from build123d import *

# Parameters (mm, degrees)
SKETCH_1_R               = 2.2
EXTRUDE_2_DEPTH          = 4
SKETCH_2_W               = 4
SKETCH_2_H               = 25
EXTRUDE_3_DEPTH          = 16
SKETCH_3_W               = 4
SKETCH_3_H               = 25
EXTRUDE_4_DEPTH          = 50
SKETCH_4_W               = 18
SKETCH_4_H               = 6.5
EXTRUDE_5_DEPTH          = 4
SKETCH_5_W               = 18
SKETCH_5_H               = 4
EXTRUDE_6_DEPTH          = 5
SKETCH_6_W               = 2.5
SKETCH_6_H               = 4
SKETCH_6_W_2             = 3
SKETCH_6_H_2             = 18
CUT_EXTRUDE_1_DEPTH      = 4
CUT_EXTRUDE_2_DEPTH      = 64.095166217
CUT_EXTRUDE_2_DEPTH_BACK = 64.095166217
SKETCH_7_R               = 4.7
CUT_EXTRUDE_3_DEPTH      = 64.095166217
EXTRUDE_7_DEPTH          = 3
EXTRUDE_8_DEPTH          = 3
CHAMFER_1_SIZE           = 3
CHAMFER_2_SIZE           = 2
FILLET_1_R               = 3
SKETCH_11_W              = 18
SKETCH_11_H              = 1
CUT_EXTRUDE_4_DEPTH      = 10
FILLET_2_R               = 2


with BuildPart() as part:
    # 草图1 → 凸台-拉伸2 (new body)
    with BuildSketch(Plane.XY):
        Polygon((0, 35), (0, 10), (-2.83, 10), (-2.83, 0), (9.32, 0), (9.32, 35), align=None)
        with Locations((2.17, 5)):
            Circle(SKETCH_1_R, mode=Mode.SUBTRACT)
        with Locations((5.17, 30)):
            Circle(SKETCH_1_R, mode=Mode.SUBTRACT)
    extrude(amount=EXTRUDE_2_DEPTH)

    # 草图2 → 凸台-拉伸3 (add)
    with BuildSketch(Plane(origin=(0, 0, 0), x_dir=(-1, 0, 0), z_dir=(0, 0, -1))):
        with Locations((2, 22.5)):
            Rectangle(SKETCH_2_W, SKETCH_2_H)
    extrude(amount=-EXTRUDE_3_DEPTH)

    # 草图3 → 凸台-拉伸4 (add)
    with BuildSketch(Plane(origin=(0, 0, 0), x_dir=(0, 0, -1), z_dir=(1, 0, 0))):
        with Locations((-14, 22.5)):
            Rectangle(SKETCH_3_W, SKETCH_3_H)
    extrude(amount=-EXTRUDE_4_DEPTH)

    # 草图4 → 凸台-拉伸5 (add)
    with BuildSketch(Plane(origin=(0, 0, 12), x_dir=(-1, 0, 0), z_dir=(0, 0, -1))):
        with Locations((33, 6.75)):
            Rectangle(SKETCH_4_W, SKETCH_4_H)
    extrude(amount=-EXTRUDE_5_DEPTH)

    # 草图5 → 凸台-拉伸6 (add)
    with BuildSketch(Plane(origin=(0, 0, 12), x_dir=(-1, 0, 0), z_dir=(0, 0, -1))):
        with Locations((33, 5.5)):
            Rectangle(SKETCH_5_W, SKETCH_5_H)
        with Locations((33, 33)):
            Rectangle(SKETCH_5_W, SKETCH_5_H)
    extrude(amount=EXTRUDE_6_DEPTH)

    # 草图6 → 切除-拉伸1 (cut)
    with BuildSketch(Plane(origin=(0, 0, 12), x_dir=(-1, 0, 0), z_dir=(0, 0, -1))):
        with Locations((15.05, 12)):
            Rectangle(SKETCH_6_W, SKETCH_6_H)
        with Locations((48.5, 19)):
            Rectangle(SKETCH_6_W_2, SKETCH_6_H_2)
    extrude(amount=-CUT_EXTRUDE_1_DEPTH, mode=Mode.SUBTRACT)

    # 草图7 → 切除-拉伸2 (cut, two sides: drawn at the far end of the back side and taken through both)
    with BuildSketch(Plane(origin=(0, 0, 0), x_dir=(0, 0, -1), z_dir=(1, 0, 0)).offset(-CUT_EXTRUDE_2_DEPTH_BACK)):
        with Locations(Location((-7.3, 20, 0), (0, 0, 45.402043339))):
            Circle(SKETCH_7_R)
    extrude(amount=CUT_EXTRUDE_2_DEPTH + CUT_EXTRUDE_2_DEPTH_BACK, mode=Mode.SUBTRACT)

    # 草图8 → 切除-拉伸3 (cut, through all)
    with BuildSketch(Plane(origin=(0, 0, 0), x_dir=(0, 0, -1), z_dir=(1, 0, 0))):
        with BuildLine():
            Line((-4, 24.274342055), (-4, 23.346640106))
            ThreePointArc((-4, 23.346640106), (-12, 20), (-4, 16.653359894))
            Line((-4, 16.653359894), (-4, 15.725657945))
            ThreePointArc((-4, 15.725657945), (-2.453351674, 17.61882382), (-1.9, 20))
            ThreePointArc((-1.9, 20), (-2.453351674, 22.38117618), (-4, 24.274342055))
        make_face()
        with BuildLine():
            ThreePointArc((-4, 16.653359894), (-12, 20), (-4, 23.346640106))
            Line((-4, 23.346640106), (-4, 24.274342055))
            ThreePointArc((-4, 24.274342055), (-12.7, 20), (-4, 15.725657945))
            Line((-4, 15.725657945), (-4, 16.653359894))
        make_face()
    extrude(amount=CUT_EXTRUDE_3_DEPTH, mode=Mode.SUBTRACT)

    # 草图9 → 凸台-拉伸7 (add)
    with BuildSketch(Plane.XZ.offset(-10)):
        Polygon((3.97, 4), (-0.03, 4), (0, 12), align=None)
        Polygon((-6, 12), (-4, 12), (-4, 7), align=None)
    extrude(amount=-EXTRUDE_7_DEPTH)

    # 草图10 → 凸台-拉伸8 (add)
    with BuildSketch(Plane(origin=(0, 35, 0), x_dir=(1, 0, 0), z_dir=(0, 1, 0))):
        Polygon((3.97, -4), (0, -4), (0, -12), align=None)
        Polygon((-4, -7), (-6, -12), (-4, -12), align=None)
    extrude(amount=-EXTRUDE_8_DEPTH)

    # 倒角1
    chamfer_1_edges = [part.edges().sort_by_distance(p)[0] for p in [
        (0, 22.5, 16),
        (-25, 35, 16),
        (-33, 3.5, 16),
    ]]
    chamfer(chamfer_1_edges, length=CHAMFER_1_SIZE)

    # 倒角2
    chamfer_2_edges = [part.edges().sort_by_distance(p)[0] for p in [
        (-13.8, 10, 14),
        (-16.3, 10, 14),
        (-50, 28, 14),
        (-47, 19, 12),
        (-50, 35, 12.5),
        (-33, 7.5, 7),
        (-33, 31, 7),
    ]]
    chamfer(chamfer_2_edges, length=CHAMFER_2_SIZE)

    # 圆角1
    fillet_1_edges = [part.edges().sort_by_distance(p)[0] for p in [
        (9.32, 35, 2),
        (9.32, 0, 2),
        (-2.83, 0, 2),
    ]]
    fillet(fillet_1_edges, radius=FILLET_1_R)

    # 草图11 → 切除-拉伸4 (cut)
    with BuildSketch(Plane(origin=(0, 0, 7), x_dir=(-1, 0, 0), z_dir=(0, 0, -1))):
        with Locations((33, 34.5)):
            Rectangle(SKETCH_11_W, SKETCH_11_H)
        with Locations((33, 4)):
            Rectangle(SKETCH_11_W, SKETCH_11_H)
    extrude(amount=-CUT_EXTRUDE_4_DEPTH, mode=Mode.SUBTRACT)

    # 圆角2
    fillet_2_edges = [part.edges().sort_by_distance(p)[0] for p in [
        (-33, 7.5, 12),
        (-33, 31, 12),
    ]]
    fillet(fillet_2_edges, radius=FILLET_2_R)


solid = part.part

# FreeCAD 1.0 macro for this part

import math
import FreeCAD as App
import Part
import Sketcher
Q = App.Units.Quantity


def edges_at(feature, points):
    """Names of the edges that pass closest to the given points."""
    edges = feature.Shape.Edges
    near = lambda p: min(range(len(edges)), key=lambda i: edges[i].distToShape(Part.Vertex(*p))[0])
    return sorted({f"Edge{near(p) + 1}" for p in points})

doc = App.newDocument("Part")
body = doc.addObject("PartDesign::Body", "Body")

# Sketch on XY plane
sketch1 = body.newObject("Sketcher::SketchObject", "Sketch")
sketch1.AttachmentSupport = (doc.getObject("XY_Plane"), [""])
sketch1.MapMode = "FlatFace"
sketch1.addGeometry(Part.LineSegment(App.Vector(0, 35, 0), App.Vector(0, 10, 0)), False)
sketch1.addGeometry(Part.LineSegment(App.Vector(0, 10, 0), App.Vector(-2.8, 10, 0)), False)
sketch1.addGeometry(Part.LineSegment(App.Vector(-2.8, 10, 0), App.Vector(-2.8, 0, 0)), False)
sketch1.addGeometry(Part.LineSegment(App.Vector(-2.8, 0, 0), App.Vector(9.3, 0, 0)), False)
sketch1.addGeometry(Part.LineSegment(App.Vector(9.3, 0, 0), App.Vector(9.3, 35, 0)), False)
sketch1.addGeometry(Part.LineSegment(App.Vector(9.3, 35, 0), App.Vector(0, 35, 0)), False)
sketch1.addGeometry(Part.Circle(App.Vector(2.2, 5, 0), App.Vector(0, 0, 1), 2.2), False)
sketch1.addGeometry(Part.Circle(App.Vector(5.2, 30, 0), App.Vector(0, 0, 1), 2.2), False)
sketch1.addConstraint(Sketcher.Constraint("Coincident", 0, 2, 1, 1))
sketch1.addConstraint(Sketcher.Constraint("Coincident", 1, 2, 2, 1))
sketch1.addConstraint(Sketcher.Constraint("Coincident", 2, 2, 3, 1))
sketch1.addConstraint(Sketcher.Constraint("Coincident", 3, 2, 4, 1))
sketch1.addConstraint(Sketcher.Constraint("Coincident", 4, 2, 5, 1))
sketch1.addConstraint(Sketcher.Constraint("Coincident", 5, 2, 0, 1))
sketch1.addConstraint(Sketcher.Constraint("Vertical", 0))
sketch1.addConstraint(Sketcher.Constraint("Horizontal", 1))
sketch1.addConstraint(Sketcher.Constraint("Vertical", 2))
sketch1.addConstraint(Sketcher.Constraint("Horizontal", 3))
sketch1.addConstraint(Sketcher.Constraint("Vertical", 4))
sketch1.addConstraint(Sketcher.Constraint("Horizontal", 5))
sketch1.addConstraint(Sketcher.Constraint("Equal", 6, 7))
sketch1.addConstraint(Sketcher.Constraint("PointOnObject", 0, 2, -2))
sketch1.addConstraint(Sketcher.Constraint("PointOnObject", 2, 2, -1))
sketch1.addConstraint(Sketcher.Constraint("Diameter", 6, Q("4.4 mm")))
sketch1.addConstraint(Sketcher.Constraint("DistanceY", 0, 2, 0, 1, Q("25 mm")))
sketch1.addConstraint(Sketcher.Constraint("DistanceY", 2, 2, 2, 1, Q("10 mm")))
sketch1.addConstraint(Sketcher.Constraint("DistanceY", -1, 1, 6, 3, Q("5 mm")))
sketch1.addConstraint(Sketcher.Constraint("DistanceY", -1, 1, 7, 3, Q("30 mm")))
sketch1.addConstraint(Sketcher.Constraint("DistanceX", 6, 3, 7, 3, Q("3 mm")))
sketch1.addConstraint(Sketcher.Constraint("DistanceX", 1, 2, 6, 3, Q("5 mm")))
sketch1.addConstraint(Sketcher.Constraint("DistanceX", 1, 2, 1, 1, Q("2.83 mm")))
sketch1.addConstraint(Sketcher.Constraint("DistanceX", 3, 1, 3, 2, Q("12.15 mm")))
pad1 = body.newObject("PartDesign::Pad", "Pad")
pad1.Profile = sketch1
pad1.Length = 4

# Sketch on XY plane
sketch2 = body.newObject("Sketcher::SketchObject", "Sketch001")
sketch2.AttachmentSupport = (doc.getObject("XY_Plane"), [""])
sketch2.MapMode = "FlatFace"
sketch2.addGeometry(Part.LineSegment(App.Vector(0, 35, 0), App.Vector(0, 10, 0)), False)
sketch2.addGeometry(Part.LineSegment(App.Vector(0, 10, 0), App.Vector(-4, 10, 0)), False)
sketch2.addGeometry(Part.LineSegment(App.Vector(-4, 10, 0), App.Vector(-4, 35, 0)), False)
sketch2.addGeometry(Part.LineSegment(App.Vector(-4, 35, 0), App.Vector(0, 35, 0)), False)
sketch2.addConstraint(Sketcher.Constraint("Coincident", 0, 2, 1, 1))
sketch2.addConstraint(Sketcher.Constraint("Coincident", 1, 2, 2, 1))
sketch2.addConstraint(Sketcher.Constraint("Coincident", 2, 2, 3, 1))
sketch2.addConstraint(Sketcher.Constraint("Coincident", 3, 2, 0, 1))
sketch2.addConstraint(Sketcher.Constraint("Vertical", 0))
sketch2.addConstraint(Sketcher.Constraint("Horizontal", 1))
sketch2.addConstraint(Sketcher.Constraint("Vertical", 2))
sketch2.addConstraint(Sketcher.Constraint("Horizontal", 3))
sketch2.addConstraint(Sketcher.Constraint("PointOnObject", 0, 2, -2))
sketch2.addConstraint(Sketcher.Constraint("DistanceX", 1, 2, 1, 1, Q("4 mm")))
sketch2.addConstraint(Sketcher.Constraint("DistanceY", 0, 2, 0, 1, Q("25 mm")))
sketch2.addConstraint(Sketcher.Constraint("DistanceY", -1, 1, 0, 2, Q("10 mm")))
pad2 = body.newObject("PartDesign::Pad", "Pad001")
pad2.Profile = sketch2
pad2.Length = 16

# Sketch on YZ plane
sketch3 = body.newObject("Sketcher::SketchObject", "Sketch002")
sketch3.AttachmentSupport = (doc.getObject("YZ_Plane"), [""])
sketch3.MapMode = "FlatFace"
sketch3.addGeometry(Part.LineSegment(App.Vector(35, 16, 0), App.Vector(10, 16, 0)), False)
sketch3.addGeometry(Part.LineSegment(App.Vector(10, 16, 0), App.Vector(10, 12, 0)), False)
sketch3.addGeometry(Part.LineSegment(App.Vector(10, 12, 0), App.Vector(35, 12, 0)), False)
sketch3.addGeometry(Part.LineSegment(App.Vector(35, 12, 0), App.Vector(35, 16, 0)), False)
sketch3.addConstraint(Sketcher.Constraint("Coincident", 0, 2, 1, 1))
sketch3.addConstraint(Sketcher.Constraint("Coincident", 1, 2, 2, 1))
sketch3.addConstraint(Sketcher.Constraint("Coincident", 2, 2, 3, 1))
sketch3.addConstraint(Sketcher.Constraint("Coincident", 3, 2, 0, 1))
sketch3.addConstraint(Sketcher.Constraint("Horizontal", 0))
sketch3.addConstraint(Sketcher.Constraint("Vertical", 1))
sketch3.addConstraint(Sketcher.Constraint("Horizontal", 2))
sketch3.addConstraint(Sketcher.Constraint("Vertical", 3))
sketch3.addConstraint(Sketcher.Constraint("DistanceX", 0, 2, 0, 1, Q("25 mm")))
sketch3.addConstraint(Sketcher.Constraint("DistanceY", 1, 2, 1, 1, Q("4 mm")))
sketch3.addConstraint(Sketcher.Constraint("DistanceX", -1, 1, 0, 2, Q("10 mm")))
sketch3.addConstraint(Sketcher.Constraint("DistanceY", -1, 1, 0, 2, Q("16 mm")))
pad3 = body.newObject("PartDesign::Pad", "Pad002")
pad3.Profile = sketch3
pad3.Length = 50
pad3.Reversed = True

# Sketch on XY plane
sketch4 = body.newObject("Sketcher::SketchObject", "Sketch003")
sketch4.AttachmentSupport = (doc.getObject("XY_Plane"), [""])
sketch4.MapMode = "FlatFace"
sketch4.AttachmentOffset = App.Placement(App.Vector(0, 0, 12), App.Rotation())
sketch4.addGeometry(Part.LineSegment(App.Vector(-24, 10, 0), App.Vector(-24, 4, 0)), False)
sketch4.addGeometry(Part.LineSegment(App.Vector(-24, 4, 0), App.Vector(-42, 4, 0)), False)
sketch4.addGeometry(Part.LineSegment(App.Vector(-42, 4, 0), App.Vector(-42, 10, 0)), False)
sketch4.addGeometry(Part.LineSegment(App.Vector(-42, 10, 0), App.Vector(-24, 10, 0)), False)
sketch4.addConstraint(Sketcher.Constraint("Coincident", 0, 2, 1, 1))
sketch4.addConstraint(Sketcher.Constraint("Coincident", 1, 2, 2, 1))
sketch4.addConstraint(Sketcher.Constraint("Coincident", 2, 2, 3, 1))
sketch4.addConstraint(Sketcher.Constraint("Coincident", 3, 2, 0, 1))
sketch4.addConstraint(Sketcher.Constraint("Vertical", 0))
sketch4.addConstraint(Sketcher.Constraint("Horizontal", 1))
sketch4.addConstraint(Sketcher.Constraint("Vertical", 2))
sketch4.addConstraint(Sketcher.Constraint("Horizontal", 3))
sketch4.addConstraint(Sketcher.Constraint("DistanceX", 1, 2, 1, 1, Q("18 mm")))
sketch4.addConstraint(Sketcher.Constraint("DistanceY", 0, 2, 0, 1, Q("6.5 mm")))
sketch4.addConstraint(Sketcher.Constraint("DistanceX", 0, 2, -1, 1, Q("24 mm")))
sketch4.addConstraint(Sketcher.Constraint("DistanceY", -1, 1, 2, 2, Q("10 mm")))
pad4 = body.newObject("PartDesign::Pad", "Pad003")
pad4.Profile = sketch4
pad4.Length = 4

# Sketch on XY plane
sketch5 = body.newObject("Sketcher::SketchObject", "Sketch004")
sketch5.AttachmentSupport = (doc.getObject("XY_Plane"), [""])
sketch5.MapMode = "FlatFace"
sketch5.AttachmentOffset = App.Placement(App.Vector(0, 0, 12), App.Rotation())
sketch5.addGeometry(Part.LineSegment(App.Vector(-24, 7.5, 0), App.Vector(-24, 3.5, 0)), False)
sketch5.addGeometry(Part.LineSegment(App.Vector(-24, 3.5, 0), App.Vector(-42, 3.5, 0)), False)
sketch5.addGeometry(Part.LineSegment(App.Vector(-42, 3.5, 0), App.Vector(-42, 7.5, 0)), False)
sketch5.addGeometry(Part.LineSegment(App.Vector(-42, 7.5, 0), App.Vector(-24, 7.5, 0)), False)
sketch5.addGeometry(Part.LineSegment(App.Vector(-24, 35, 0), App.Vector(-24, 31, 0)), False)
sketch5.addGeometry(Part.LineSegment(App.Vector(-24, 31, 0), App.Vector(-42, 31, 0)), False)
sketch5.addGeometry(Part.LineSegment(App.Vector(-42, 31, 0), App.Vector(-42, 35, 0)), False)
sketch5.addGeometry(Part.LineSegment(App.Vector(-42, 35, 0), App.Vector(-24, 35, 0)), False)
sketch5.addConstraint(Sketcher.Constraint("Coincident", 0, 2, 1, 1))
sketch5.addConstraint(Sketcher.Constraint("Coincident", 1, 2, 2, 1))
sketch5.addConstraint(Sketcher.Constraint("Coincident", 2, 2, 3, 1))
sketch5.addConstraint(Sketcher.Constraint("Coincident", 3, 2, 0, 1))
sketch5.addConstraint(Sketcher.Constraint("Coincident", 4, 2, 5, 1))
sketch5.addConstraint(Sketcher.Constraint("Coincident", 5, 2, 6, 1))
sketch5.addConstraint(Sketcher.Constraint("Coincident", 6, 2, 7, 1))
sketch5.addConstraint(Sketcher.Constraint("Coincident", 7, 2, 4, 1))
sketch5.addConstraint(Sketcher.Constraint("Vertical", 0))
sketch5.addConstraint(Sketcher.Constraint("Horizontal", 1))
sketch5.addConstraint(Sketcher.Constraint("Vertical", 2))
sketch5.addConstraint(Sketcher.Constraint("Horizontal", 3))
sketch5.addConstraint(Sketcher.Constraint("Vertical", 4))
sketch5.addConstraint(Sketcher.Constraint("Horizontal", 5))
sketch5.addConstraint(Sketcher.Constraint("Vertical", 6))
sketch5.addConstraint(Sketcher.Constraint("Horizontal", 7))
sketch5.addConstraint(Sketcher.Constraint("Vertical", 3, 2, 4, 2))
sketch5.addConstraint(Sketcher.Constraint("Vertical", 2, 2, 5, 2))
sketch5.addConstraint(Sketcher.Constraint("Equal", 2, 4))
sketch5.addConstraint(Sketcher.Constraint("DistanceX", 1, 2, 1, 1, Q("18 mm")))
sketch5.addConstraint(Sketcher.Constraint("DistanceY", 0, 2, 0, 1, Q("4 mm")))
sketch5.addConstraint(Sketcher.Constraint("DistanceX", 0, 2, -1, 1, Q("24 mm")))
sketch5.addConstraint(Sketcher.Constraint("DistanceY", -1, 1, 4, 2, Q("31 mm")))
sketch5.addConstraint(Sketcher.Constraint("DistanceY", -1, 1, 0, 2, Q("3.5 mm")))
pad5 = body.newObject("PartDesign::Pad", "Pad004")
pad5.Profile = sketch5
pad5.Length = 5
pad5.Reversed = True

# Sketch on XY plane
sketch6 = body.newObject("Sketcher::SketchObject", "Sketch005")
sketch6.AttachmentSupport = (doc.getObject("XY_Plane"), [""])
sketch6.MapMode = "FlatFace"
sketch6.AttachmentOffset = App.Placement(App.Vector(0, 0, 12), App.Rotation())
sketch6.addGeometry(Part.LineSegment(App.Vector(-13.8, 14, 0), App.Vector(-13.8, 10, 0)), False)
sketch6.addGeometry(Part.LineSegment(App.Vector(-13.8, 10, 0), App.Vector(-16.3, 10, 0)), False)
sketch6.addGeometry(Part.LineSegment(App.Vector(-16.3, 10, 0), App.Vector(-16.3, 14, 0)), False)
sketch6.addGeometry(Part.LineSegment(App.Vector(-16.3, 14, 0), App.Vector(-13.8, 14, 0)), False)
sketch6.addGeometry(Part.LineSegment(App.Vector(-47, 28, 0), App.Vector(-47, 10, 0)), False)
sketch6.addGeometry(Part.LineSegment(App.Vector(-47, 10, 0), App.Vector(-50, 10, 0)), False)
sketch6.addGeometry(Part.LineSegment(App.Vector(-50, 10, 0), App.Vector(-50, 28, 0)), False)
sketch6.addGeometry(Part.LineSegment(App.Vector(-50, 28, 0), App.Vector(-47, 28, 0)), False)
sketch6.addConstraint(Sketcher.Constraint("Coincident", 0, 2, 1, 1))
sketch6.addConstraint(Sketcher.Constraint("Coincident", 1, 2, 2, 1))
sketch6.addConstraint(Sketcher.Constraint("Coincident", 2, 2, 3, 1))
sketch6.addConstraint(Sketcher.Constraint("Coincident", 3, 2, 0, 1))
sketch6.addConstraint(Sketcher.Constraint("Coincident", 4, 2, 5, 1))
sketch6.addConstraint(Sketcher.Constraint("Coincident", 5, 2, 6, 1))
sketch6.addConstraint(Sketcher.Constraint("Coincident", 6, 2, 7, 1))
sketch6.addConstraint(Sketcher.Constraint("Coincident", 7, 2, 4, 1))
sketch6.addConstraint(Sketcher.Constraint("Vertical", 0))
sketch6.addConstraint(Sketcher.Constraint("Horizontal", 1))
sketch6.addConstraint(Sketcher.Constraint("Vertical", 2))
sketch6.addConstraint(Sketcher.Constraint("Horizontal", 3))
sketch6.addConstraint(Sketcher.Constraint("Vertical", 4))
sketch6.addConstraint(Sketcher.Constraint("Horizontal", 5))
sketch6.addConstraint(Sketcher.Constraint("Vertical", 6))
sketch6.addConstraint(Sketcher.Constraint("Horizontal", 7))
sketch6.addConstraint(Sketcher.Constraint("Horizontal", 1, 2, 4, 2))
sketch6.addConstraint(Sketcher.Constraint("DistanceX", 5, 2, 5, 1, Q("3 mm")))
sketch6.addConstraint(Sketcher.Constraint("DistanceY", 0, 2, 0, 1, Q("4 mm")))
sketch6.addConstraint(Sketcher.Constraint("DistanceY", 4, 2, 4, 1, Q("18 mm")))
sketch6.addConstraint(Sketcher.Constraint("DistanceX", 1, 2, 1, 1, Q("2.5 mm")))
sketch6.addConstraint(Sketcher.Constraint("DistanceY", -1, 1, 0, 2, Q("10 mm")))
sketch6.addConstraint(Sketcher.Constraint("DistanceX", 4, 2, -1, 1, Q("47 mm")))
sketch6.addConstraint(Sketcher.Constraint("DistanceX", 0, 2, -1, 1, Q("13.8 mm")))
pocket1 = body.newObject("PartDesign::Pocket", "Pocket")
pocket1.Profile = sketch6
pocket1.Length = 4
pocket1.Reversed = True

# Sketch on YZ plane
sketch7 = body.newObject("Sketcher::SketchObject", "Sketch006")
sketch7.AttachmentSupport = (doc.getObject("YZ_Plane"), [""])
sketch7.MapMode = "FlatFace"
sketch7.addGeometry(Part.Circle(App.Vector(20, 7.3, 0), App.Vector(0, 0, 1), 4.7), False)
sketch7.addConstraint(Sketcher.Constraint("Diameter", 0, Q("9.4 mm")))
sketch7.addConstraint(Sketcher.Constraint("DistanceX", -1, 1, 0, 3, Q("20 mm")))
sketch7.addConstraint(Sketcher.Constraint("DistanceY", -1, 1, 0, 3, Q("7.3 mm")))
pocket2 = body.newObject("PartDesign::Pocket", "Pocket001")
pocket2.Profile = sketch7
pocket2.Type = "ThroughAll"
pocket2.Midplane = True

# Sketch on YZ plane
sketch8 = body.newObject("Sketcher::SketchObject", "Sketch007")
sketch8.AttachmentSupport = (doc.getObject("YZ_Plane"), [""])
sketch8.MapMode = "FlatFace"
sketch8.addGeometry(Part.ArcOfCircle(Part.Circle(App.Vector(20, 7.3, 0), App.Vector(0, 0, 1), 5.4), math.radians(-142), math.radians(-90)), False)
sketch8.addGeometry(Part.ArcOfCircle(Part.Circle(App.Vector(20, 7.3, 0), App.Vector(0, 0, 1), 5.4), math.radians(-90), math.radians(-38)), False)
sketch8.addGeometry(Part.ArcOfCircle(Part.Circle(App.Vector(20, 7.3, 0), App.Vector(0, 0, 1), 5.4), math.radians(-38), math.radians(218)), False)
sketch8.addConstraint(Sketcher.Constraint("Tangent", 0, 2, 1, 1))
sketch8.addConstraint(Sketcher.Constraint("Tangent", 1, 2, 2, 1))
sketch8.addConstraint(Sketcher.Constraint("Tangent", 2, 2, 0, 1))
sketch8.addConstraint(Sketcher.Constraint("Horizontal", 1, 2, 2, 2))
sketch8.addConstraint(Sketcher.Constraint("Vertical", 2, 3, 0, 2))
sketch8.addConstraint(Sketcher.Constraint("Radius", 0, Q("5.4 mm")))
sketch8.addConstraint(Sketcher.Constraint("DistanceX", -1, 1, 0, 3, Q("20 mm")))
sketch8.addConstraint(Sketcher.Constraint("DistanceY", -1, 1, 1, 2, Q("4 mm")))
sketch8.addConstraint(Sketcher.Constraint("DistanceY", -1, 1, 0, 3, Q("7.3 mm")))
pocket3 = body.newObject("PartDesign::Pocket", "Pocket002")
pocket3.Profile = sketch8
pocket3.Type = "ThroughAll"
pocket3.Reversed = True

# Sketch on XZ plane
sketch9 = body.newObject("Sketcher::SketchObject", "Sketch008")
sketch9.AttachmentSupport = (doc.getObject("XZ_Plane"), [""])
sketch9.MapMode = "FlatFace"
sketch9.AttachmentOffset = App.Placement(App.Vector(0, 0, -10), App.Rotation())
sketch9.addGeometry(Part.LineSegment(App.Vector(0, 4, 0), App.Vector(4, 4, 0)), False)
sketch9.addGeometry(Part.LineSegment(App.Vector(4, 4, 0), App.Vector(0, 12, 0)), False)
sketch9.addGeometry(Part.LineSegment(App.Vector(0, 12, 0), App.Vector(0, 4, 0)), False)
sketch9.addGeometry(Part.LineSegment(App.Vector(-4, 12, 0), App.Vector(-6, 12, 0)), False)
sketch9.addGeometry(Part.LineSegment(App.Vector(-6, 12, 0), App.Vector(-4, 7, 0)), False)
sketch9.addGeometry(Part.LineSegment(App.Vector(-4, 7, 0), App.Vector(-4, 12, 0)), False)
sketch9.addConstraint(Sketcher.Constraint("Coincident", 0, 2, 1, 1))
sketch9.addConstraint(Sketcher.Constraint("Coincident", 1, 2, 2, 1))
sketch9.addConstraint(Sketcher.Constraint("Coincident", 2, 2, 0, 1))
sketch9.addConstraint(Sketcher.Constraint("Coincident", 3, 2, 4, 1))
sketch9.addConstraint(Sketcher.Constraint("Coincident", 4, 2, 5, 1))
sketch9.addConstraint(Sketcher.Constraint("Coincident", 5, 2, 3, 1))
sketch9.addConstraint(Sketcher.Constraint("Horizontal", 0))
sketch9.addConstraint(Sketcher.Constraint("Horizontal", 3))
sketch9.addConstraint(Sketcher.Constraint("Vertical", 5))
sketch9.addConstraint(Sketcher.Constraint("PointOnObject", 1, 2, -2))
sketch9.addConstraint(Sketcher.Constraint("Horizontal", 1, 2, 3, 2))
sketch9.addConstraint(Sketcher.Constraint("DistanceX", 0, 1, 0, 2, Q("4 mm")))
sketch9.addConstraint(Sketcher.Constraint("DistanceX", 3, 2, 3, 1, Q("2 mm")))
sketch9.addConstraint(Sketcher.Constraint("DistanceY", 5, 1, 5, 2, Q("5 mm")))
sketch9.addConstraint(Sketcher.Constraint("DistanceY", -1, 1, 0, 2, Q("4 mm")))
sketch9.addConstraint(Sketcher.Constraint("DistanceY", -1, 1, 1, 2, Q("12 mm")))
sketch9.addConstraint(Sketcher.Constraint("DistanceX", 3, 2, -1, 1, Q("6 mm")))
sketch9.addConstraint(Sketcher.Constraint("DistanceX", -1, 1, 0, 2, Q("3.97 mm")))
pad6 = body.newObject("PartDesign::Pad", "Pad005")
pad6.Profile = sketch9
pad6.Length = 3
pad6.Reversed = True

# Sketch on XZ plane
sketch10 = body.newObject("Sketcher::SketchObject", "Sketch009")
sketch10.AttachmentSupport = (doc.getObject("XZ_Plane"), [""])
sketch10.MapMode = "FlatFace"
sketch10.AttachmentOffset = App.Placement(App.Vector(0, 0, -35), App.Rotation())
sketch10.addGeometry(Part.LineSegment(App.Vector(4, 4, 0), App.Vector(0, 4, 0)), False)
sketch10.addGeometry(Part.LineSegment(App.Vector(0, 4, 0), App.Vector(0, 12, 0)), False)
sketch10.addGeometry(Part.LineSegment(App.Vector(0, 12, 0), App.Vector(4, 4, 0)), False)
sketch10.addGeometry(Part.LineSegment(App.Vector(-4, 7, 0), App.Vector(-6, 12, 0)), False)
sketch10.addGeometry(Part.LineSegment(App.Vector(-6, 12, 0), App.Vector(-4, 12, 0)), False)
sketch10.addGeometry(Part.LineSegment(App.Vector(-4, 12, 0), App.Vector(-4, 7, 0)), False)
sketch10.addConstraint(Sketcher.Constraint("Coincident", 0, 2, 1, 1))
sketch10.addConstraint(Sketcher.Constraint("Coincident", 1, 2, 2, 1))
sketch10.addConstraint(Sketcher.Constraint("Coincident", 2, 2, 0, 1))
sketch10.addConstraint(Sketcher.Constraint("Coincident", 3, 2, 4, 1))
sketch10.addConstraint(Sketcher.Constraint("Coincident", 4, 2, 5, 1))
sketch10.addConstraint(Sketcher.Constraint("Coincident", 5, 2, 3, 1))
sketch10.addConstraint(Sketcher.Constraint("Horizontal", 0))
sketch10.addConstraint(Sketcher.Constraint("Vertical", 1))
sketch10.addConstraint(Sketcher.Constraint("Horizontal", 4))
sketch10.addConstraint(Sketcher.Constraint("Vertical", 5))
sketch10.addConstraint(Sketcher.Constraint("PointOnObject", 0, 2, -2))
sketch10.addConstraint(Sketcher.Constraint("Horizontal", 1, 2, 3, 2))
sketch10.addConstraint(Sketcher.Constraint("DistanceX", 4, 1, 4, 2, Q("2 mm")))
sketch10.addConstraint(Sketcher.Constraint("DistanceY", 1, 1, 1, 2, Q("8 mm")))
sketch10.addConstraint(Sketcher.Constraint("DistanceY", 5, 2, 5, 1, Q("5 mm")))
sketch10.addConstraint(Sketcher.Constraint("DistanceY", -1, 1, 0, 2, Q("4 mm")))
sketch10.addConstraint(Sketcher.Constraint("DistanceX", 3, 2, -1, 1, Q("6 mm")))
sketch10.addConstraint(Sketcher.Constraint("DistanceX", 0, 2, 0, 1, Q("3.97 mm")))
pad7 = body.newObject("PartDesign::Pad", "Pad006")
pad7.Profile = sketch10
pad7.Length = 3
doc.recompute()

chamfer = body.newObject("PartDesign::Chamfer", "Chamfer")
chamfer.Base = (pad7, edges_at(pad7, [(0, 22.5, 16), (-25, 35, 16), (-33, 3.5, 16)]))
chamfer.Size = 3
doc.recompute()

chamfer2 = body.newObject("PartDesign::Chamfer", "Chamfer001")
chamfer2.Base = (chamfer, edges_at(chamfer, [
    (-13.8, 10, 14),
    (-16.3, 10, 14),
    (-50, 28, 14),
    (-47, 19, 12),
    (-50, 35, 12.5),
    (-33, 7.5, 7),
    (-33, 31, 7),
]))
chamfer2.Size = 2
doc.recompute()

fillet = body.newObject("PartDesign::Fillet", "Fillet")
fillet.Base = (chamfer2, edges_at(chamfer2, [(9.32, 35, 2), (9.32, 0, 2), (-2.83, 0, 2)]))
fillet.Radius = 3

# Sketch on XY plane
sketch11 = body.newObject("Sketcher::SketchObject", "Sketch010")
sketch11.AttachmentSupport = (doc.getObject("XY_Plane"), [""])
sketch11.MapMode = "FlatFace"
sketch11.AttachmentOffset = App.Placement(App.Vector(0, 0, 7), App.Rotation())
sketch11.addGeometry(Part.LineSegment(App.Vector(-24, 35, 0), App.Vector(-24, 34, 0)), False)
sketch11.addGeometry(Part.LineSegment(App.Vector(-24, 34, 0), App.Vector(-42, 34, 0)), False)
sketch11.addGeometry(Part.LineSegment(App.Vector(-42, 34, 0), App.Vector(-42, 35, 0)), False)
sketch11.addGeometry(Part.LineSegment(App.Vector(-42, 35, 0), App.Vector(-24, 35, 0)), False)
sketch11.addGeometry(Part.LineSegment(App.Vector(-24, 4.5, 0), App.Vector(-24, 3.5, 0)), False)
sketch11.addGeometry(Part.LineSegment(App.Vector(-24, 3.5, 0), App.Vector(-42, 3.5, 0)), False)
sketch11.addGeometry(Part.LineSegment(App.Vector(-42, 3.5, 0), App.Vector(-42, 4.5, 0)), False)
sketch11.addGeometry(Part.LineSegment(App.Vector(-42, 4.5, 0), App.Vector(-24, 4.5, 0)), False)
sketch11.addConstraint(Sketcher.Constraint("Coincident", 0, 2, 1, 1))
sketch11.addConstraint(Sketcher.Constraint("Coincident", 1, 2, 2, 1))
sketch11.addConstraint(Sketcher.Constraint("Coincident", 2, 2, 3, 1))
sketch11.addConstraint(Sketcher.Constraint("Coincident", 3, 2, 0, 1))
sketch11.addConstraint(Sketcher.Constraint("Coincident", 4, 2, 5, 1))
sketch11.addConstraint(Sketcher.Constraint("Coincident", 5, 2, 6, 1))
sketch11.addConstraint(Sketcher.Constraint("Coincident", 6, 2, 7, 1))
sketch11.addConstraint(Sketcher.Constraint("Coincident", 7, 2, 4, 1))
sketch11.addConstraint(Sketcher.Constraint("Vertical", 0))
sketch11.addConstraint(Sketcher.Constraint("Horizontal", 1))
sketch11.addConstraint(Sketcher.Constraint("Vertical", 2))
sketch11.addConstraint(Sketcher.Constraint("Horizontal", 3))
sketch11.addConstraint(Sketcher.Constraint("Vertical", 4))
sketch11.addConstraint(Sketcher.Constraint("Horizontal", 5))
sketch11.addConstraint(Sketcher.Constraint("Vertical", 6))
sketch11.addConstraint(Sketcher.Constraint("Horizontal", 7))
sketch11.addConstraint(Sketcher.Constraint("Vertical", 3, 2, 4, 2))
sketch11.addConstraint(Sketcher.Constraint("Vertical", 2, 2, 5, 2))
sketch11.addConstraint(Sketcher.Constraint("Equal", 2, 4))
sketch11.addConstraint(Sketcher.Constraint("DistanceX", 1, 2, 1, 1, Q("18 mm")))
sketch11.addConstraint(Sketcher.Constraint("DistanceY", 0, 2, 0, 1, Q("1 mm")))
sketch11.addConstraint(Sketcher.Constraint("DistanceX", 0, 2, -1, 1, Q("24 mm")))
sketch11.addConstraint(Sketcher.Constraint("DistanceY", -1, 1, 0, 2, Q("34 mm")))
sketch11.addConstraint(Sketcher.Constraint("DistanceY", -1, 1, 4, 2, Q("3.5 mm")))
pocket4 = body.newObject("PartDesign::Pocket", "Pocket003")
pocket4.Profile = sketch11
pocket4.Length = 10
pocket4.Reversed = True
doc.recompute()

fillet2 = body.newObject("PartDesign::Fillet", "Fillet001")
fillet2.Base = (pocket4, edges_at(pocket4, [(-33, 7.5, 12), (-33, 31, 12)]))
fillet2.Radius = 2

doc.recompute()
